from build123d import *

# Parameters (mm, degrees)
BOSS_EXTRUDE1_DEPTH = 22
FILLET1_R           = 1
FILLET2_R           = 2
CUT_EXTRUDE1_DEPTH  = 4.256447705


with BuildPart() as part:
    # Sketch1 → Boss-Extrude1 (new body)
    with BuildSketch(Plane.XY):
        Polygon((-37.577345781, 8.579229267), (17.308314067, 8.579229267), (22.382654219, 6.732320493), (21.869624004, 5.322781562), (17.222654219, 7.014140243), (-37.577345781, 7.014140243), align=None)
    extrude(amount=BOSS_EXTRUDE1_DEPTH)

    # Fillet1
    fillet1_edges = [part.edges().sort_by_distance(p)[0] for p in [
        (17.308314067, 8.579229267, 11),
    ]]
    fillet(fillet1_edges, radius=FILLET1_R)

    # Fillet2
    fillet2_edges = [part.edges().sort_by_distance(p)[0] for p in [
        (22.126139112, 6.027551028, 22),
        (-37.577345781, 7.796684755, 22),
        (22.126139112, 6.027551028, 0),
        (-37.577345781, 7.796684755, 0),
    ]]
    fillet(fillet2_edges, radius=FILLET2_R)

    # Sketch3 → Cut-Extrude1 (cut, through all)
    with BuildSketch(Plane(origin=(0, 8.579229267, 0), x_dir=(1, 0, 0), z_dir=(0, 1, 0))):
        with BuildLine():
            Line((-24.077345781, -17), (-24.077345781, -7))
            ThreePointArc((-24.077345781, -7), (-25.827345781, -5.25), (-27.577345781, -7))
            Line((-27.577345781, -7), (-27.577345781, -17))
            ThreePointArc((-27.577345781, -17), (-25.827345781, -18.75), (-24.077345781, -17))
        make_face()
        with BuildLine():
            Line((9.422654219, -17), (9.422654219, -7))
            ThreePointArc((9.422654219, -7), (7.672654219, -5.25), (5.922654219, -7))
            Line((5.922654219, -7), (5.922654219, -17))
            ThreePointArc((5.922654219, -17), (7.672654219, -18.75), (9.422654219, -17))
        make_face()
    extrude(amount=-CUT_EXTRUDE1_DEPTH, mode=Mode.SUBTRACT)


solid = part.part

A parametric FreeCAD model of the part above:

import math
import FreeCAD as App
import Part
import Sketcher
from FreeCAD import Vector
Q = App.Units.Quantity


def edges_at(feature, points):
    """Names of the edges that pass closest to the given points."""
    edges = feature.Shape.Edges
    near = lambda p: min(range(len(edges)), key=lambda i: edges[i].distToShape(Part.Vertex(*p))[0])
    return sorted({f"Edge{near(p) + 1}" for p in points})

doc = App.newDocument("Part")
body = doc.addObject("PartDesign::Body", "Body")

# Sketch on XY plane
sketch1 = body.newObject("Sketcher::SketchObject", "Sketch")
sketch1.AttachmentSupport = (doc.getObject("XY_Plane"), [""])
sketch1.MapMode = "FlatFace"
sketch1.addGeometry([
    Part.LineSegment(Vector(17.3, 8.6, 0), Vector(-37.6, 8.6, 0)),  # 0
    Part.LineSegment(Vector(-37.6, 8.6, 0), Vector(-37.6, 7, 0)),  # 1
    Part.LineSegment(Vector(-37.6, 7, 0), Vector(17.2, 7, 0)),  # 2
    Part.LineSegment(Vector(17.2, 7, 0), Vector(21.9, 5.3, 0)),  # 3
    Part.LineSegment(Vector(21.9, 5.3, 0), Vector(22.4, 6.7, 0)),  # 4
    Part.LineSegment(Vector(22.4, 6.7, 0), Vector(17.3, 8.6, 0)),  # 5
], False)
sketch1.addConstraint([
    Sketcher.Constraint("Coincident", 0, 2, 1, 1),
    Sketcher.Constraint("Coincident", 1, 2, 2, 1),
    Sketcher.Constraint("Coincident", 2, 2, 3, 1),
    Sketcher.Constraint("Coincident", 3, 2, 4, 1),
    Sketcher.Constraint("Coincident", 4, 2, 5, 1),
    Sketcher.Constraint("Coincident", 5, 2, 0, 1),
    Sketcher.Constraint("Horizontal", 0),
    Sketcher.Constraint("Vertical", 1),
    Sketcher.Constraint("Horizontal", 2),
    Sketcher.Constraint("Perpendicular", 3, 4),
    Sketcher.Constraint("Perpendicular", 4, 5),
    Sketcher.Constraint("Angle", 3, Q("-20 deg")),
    Sketcher.Constraint("DistanceX", 2, 1, 2, 2, Q("54.8 mm")),
    Sketcher.Constraint("Distance", 4, Q("1.5 mm")),
    Sketcher.Constraint("Distance", 5, Q("5.4 mm")),
    Sketcher.Constraint("DistanceX", 2, 2, 4, 2, Q("5.16 mm")),
    Sketcher.Constraint("DistanceY", -1, 1, 0, 2, Q("8.579229 mm")),
    Sketcher.Constraint("DistanceX", 0, 2, -1, 1, Q("37.577346 mm")),
])
pad1 = body.newObject("PartDesign::Pad", "Pad")
pad1.Profile = sketch1
pad1.Length = 22
doc.recompute()

fillet = body.newObject("PartDesign::Fillet", "Fillet")
fillet.Base = (pad1, edges_at(pad1, [(17.308, 8.579, 11)]))
fillet.Radius = 1
doc.recompute()

fillet2 = body.newObject("PartDesign::Fillet", "Fillet001")
fillet2.Base = (fillet, edges_at(fillet, [
    (22.126, 6.028, 22),
    (-37.577, 7.797, 22),
    (22.126, 6.028, 0),
    (-37.577, 7.797, 0),
]))
fillet2.Radius = 2

# Sketch on XZ plane
sketch2 = body.newObject("Sketcher::SketchObject", "Sketch001")
sketch2.AttachmentSupport = (doc.getObject("XZ_Plane"), [""])
sketch2.MapMode = "FlatFace"
sketch2.AttachmentOffset = App.Placement(Vector(0, 0, -8.579229), App.Rotation())
sketch2.addGeometry([
    Part.LineSegment(Vector(-24.1, 17, 0), Vector(-24.1, 7, 0)),  # 0
    Part.ArcOfCircle(Part.Circle(Vector(-25.8, 7, 0), Vector(0, 0, 1), 1.8), math.radians(180), math.radians(360)),  # 1
    Part.LineSegment(Vector(-27.6, 7, 0), Vector(-27.6, 17, 0)),  # 2
    Part.ArcOfCircle(Part.Circle(Vector(-25.8, 17, 0), Vector(0, 0, 1), 1.8), math.radians(0), math.radians(180)),  # 3
    Part.LineSegment(Vector(9.4, 17, 0), Vector(9.4, 7, 0)),  # 4
    Part.ArcOfCircle(Part.Circle(Vector(7.7, 7, 0), Vector(0, 0, 1), 1.8), math.radians(180), math.radians(360)),  # 5
    Part.LineSegment(Vector(5.9, 7, 0), Vector(5.9, 17, 0)),  # 6
    Part.ArcOfCircle(Part.Circle(Vector(7.7, 17, 0), Vector(0, 0, 1), 1.8), math.radians(0), math.radians(180)),  # 7
], False)
sketch2.addConstraint([
    Sketcher.Constraint("Tangent", 0, 2, 1, 2),
    Sketcher.Constraint("Tangent", 1, 1, 2, 1),
    Sketcher.Constraint("Tangent", 2, 2, 3, 2),
    Sketcher.Constraint("Tangent", 3, 1, 0, 1),
    Sketcher.Constraint("Tangent", 4, 2, 5, 2),
    Sketcher.Constraint("Tangent", 5, 1, 6, 1),
    Sketcher.Constraint("Tangent", 6, 2, 7, 2),
    Sketcher.Constraint("Tangent", 7, 1, 4, 1),
    Sketcher.Constraint("Vertical", 0),
    Sketcher.Constraint("Vertical", 2),
    Sketcher.Constraint("Vertical", 4),
    Sketcher.Constraint("Vertical", 6),
    Sketcher.Constraint("Equal", 3, 5),
    Sketcher.Constraint("Horizontal", 1, 3, 5, 3),
    Sketcher.Constraint("Horizontal", 3, 3, 7, 3),
    Sketcher.Constraint("DistanceY", 0, 2, 0, 1, Q("10 mm")),
    Sketcher.Constraint("Radius", 1, Q("1.75 mm")),
    Sketcher.Constraint("DistanceY", -1, 1, 1, 3, Q("7 mm")),
    Sketcher.Constraint("DistanceX", 0, 2, 5, 1, Q("30 mm")),
    Sketcher.Constraint("DistanceX", 1, 3, -1, 1, Q("25.827346 mm")),
])
pocket1 = body.newObject("PartDesign::Pocket", "Pocket")
pocket1.Profile = sketch2
pocket1.Type = "ThroughAll"
pocket1.Reversed = True

doc.recompute()
